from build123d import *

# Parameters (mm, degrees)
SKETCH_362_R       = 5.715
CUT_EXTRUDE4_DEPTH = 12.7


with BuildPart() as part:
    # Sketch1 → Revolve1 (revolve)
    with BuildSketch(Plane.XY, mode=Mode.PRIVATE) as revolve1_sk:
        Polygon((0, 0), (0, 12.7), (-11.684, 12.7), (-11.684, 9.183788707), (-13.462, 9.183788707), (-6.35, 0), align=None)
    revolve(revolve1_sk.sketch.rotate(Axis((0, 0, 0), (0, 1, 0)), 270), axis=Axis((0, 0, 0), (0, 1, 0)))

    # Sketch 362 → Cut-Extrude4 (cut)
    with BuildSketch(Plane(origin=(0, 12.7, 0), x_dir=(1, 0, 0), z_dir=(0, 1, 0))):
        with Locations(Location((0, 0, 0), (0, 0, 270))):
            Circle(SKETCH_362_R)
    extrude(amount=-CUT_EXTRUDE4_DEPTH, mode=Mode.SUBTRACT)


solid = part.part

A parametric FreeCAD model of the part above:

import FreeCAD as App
import Part
import Sketcher
Q = App.Units.Quantity

doc = App.newDocument("Part")
params = doc.addObject("Spreadsheet::Sheet", "Params")
for row, (alias, value) in enumerate([
    ("sketch1_height", "0.5 in"),
    ("sketch1_width", "0.46 in"),
    ("sketch1_width2", "0.07 in"),
    ("sketch1_width3", "0.25 in"),
    ("revolution_angle", "360 deg"),
    ("sketch2_diameter", "0.45 in"),
    ("pocket1_length", "0.5 in"),
], start=1):
    params.set(f"A{row}", alias)
    params.set(f"B{row}", "=" + value)
    params.setAlias(f"B{row}", alias)

body = doc.addObject("PartDesign::Body", "Body")

# Sketch on XY plane
sketch1 = body.newObject("Sketcher::SketchObject", "Sketch")
sketch1.AttachmentSupport = (doc.getObject("XY_Plane"), [""])
sketch1.MapMode = "FlatFace"
sketch1.addGeometry([
    Part.LineSegment(App.Vector(0, 0, 0), App.Vector(0, 12.7, 0)),  # 0
    Part.LineSegment(App.Vector(0, 12.7, 0), App.Vector(-11.7, 12.7, 0)),  # 1
    Part.LineSegment(App.Vector(-11.7, 12.7, 0), App.Vector(-11.7, 9.2, 0)),  # 2
    Part.LineSegment(App.Vector(-11.7, 9.2, 0), App.Vector(-13.5, 9.2, 0)),  # 3
    Part.LineSegment(App.Vector(-13.5, 9.2, 0), App.Vector(-6.3, 0, 0)),  # 4
    Part.LineSegment(App.Vector(-6.3, 0, 0), App.Vector(0, 0, 0)),  # 5
], False)
sketch1.addConstraint([
    Sketcher.Constraint("Coincident", 0, 2, 1, 1),
    Sketcher.Constraint("Coincident", 1, 2, 2, 1),
    Sketcher.Constraint("Coincident", 2, 2, 3, 1),
    Sketcher.Constraint("Coincident", 3, 2, 4, 1),
    Sketcher.Constraint("Coincident", 4, 2, 5, 1),
    Sketcher.Constraint("Coincident", 5, 2, 0, 1),
    Sketcher.Constraint("Vertical", 0),
    Sketcher.Constraint("Horizontal", 1),
    Sketcher.Constraint("Vertical", 2),
    Sketcher.Constraint("Horizontal", 3),
    Sketcher.Constraint("Horizontal", 5),
    Sketcher.Constraint("Coincident", 5, 2, -1, 1),
    Sketcher.Constraint("DistanceY", 0, 1, 0, 2, Q("0.5 in")),
    Sketcher.Constraint("DistanceX", 1, 2, 1, 1, Q("0.46 in")),
    Sketcher.Constraint("DistanceX", 3, 2, 3, 1, Q("0.07 in")),
    Sketcher.Constraint("DistanceX", 5, 1, 5, 2, Q("0.25 in")),
    Sketcher.Constraint("DistanceY", 2, 2, 2, 1, 3.516211),
])
sketch1.setExpression("Constraints[12]", "Params.sketch1_height")
sketch1.setExpression("Constraints[13]", "Params.sketch1_width")
sketch1.setExpression("Constraints[14]", "Params.sketch1_width2")
sketch1.setExpression("Constraints[15]", "Params.sketch1_width3")
revolution = body.newObject("PartDesign::Revolution", "Revolution")
revolution.Profile = sketch1
revolution.ReferenceAxis = (sketch1, ["V_Axis"])
revolution.setExpression("Angle", "Params.revolution_angle")

# Sketch on XZ plane
sketch2 = body.newObject("Sketcher::SketchObject", "Sketch001")
sketch2.AttachmentSupport = (doc.getObject("XZ_Plane"), [""])
sketch2.MapMode = "FlatFace"
sketch2.AttachmentOffset = App.Placement(App.Vector(0, 0, -0.5 * 25.4), App.Rotation())
sketch2.addGeometry(Part.Circle(App.Vector(0, 0, 0), App.Vector(0, 0, 1), 6), False)
sketch2.addConstraint([
    Sketcher.Constraint("Coincident", 0, 3, -1, 1),
    Sketcher.Constraint("Diameter", 0, Q("0.45 in")),
])
sketch2.setExpression("Constraints[1]", "Params.sketch2_diameter")
pocket1 = body.newObject("PartDesign::Pocket", "Pocket")
pocket1.Profile = sketch2
pocket1.setExpression("Length", "Params.pocket1_length")
pocket1.Reversed = True

doc.recompute()
